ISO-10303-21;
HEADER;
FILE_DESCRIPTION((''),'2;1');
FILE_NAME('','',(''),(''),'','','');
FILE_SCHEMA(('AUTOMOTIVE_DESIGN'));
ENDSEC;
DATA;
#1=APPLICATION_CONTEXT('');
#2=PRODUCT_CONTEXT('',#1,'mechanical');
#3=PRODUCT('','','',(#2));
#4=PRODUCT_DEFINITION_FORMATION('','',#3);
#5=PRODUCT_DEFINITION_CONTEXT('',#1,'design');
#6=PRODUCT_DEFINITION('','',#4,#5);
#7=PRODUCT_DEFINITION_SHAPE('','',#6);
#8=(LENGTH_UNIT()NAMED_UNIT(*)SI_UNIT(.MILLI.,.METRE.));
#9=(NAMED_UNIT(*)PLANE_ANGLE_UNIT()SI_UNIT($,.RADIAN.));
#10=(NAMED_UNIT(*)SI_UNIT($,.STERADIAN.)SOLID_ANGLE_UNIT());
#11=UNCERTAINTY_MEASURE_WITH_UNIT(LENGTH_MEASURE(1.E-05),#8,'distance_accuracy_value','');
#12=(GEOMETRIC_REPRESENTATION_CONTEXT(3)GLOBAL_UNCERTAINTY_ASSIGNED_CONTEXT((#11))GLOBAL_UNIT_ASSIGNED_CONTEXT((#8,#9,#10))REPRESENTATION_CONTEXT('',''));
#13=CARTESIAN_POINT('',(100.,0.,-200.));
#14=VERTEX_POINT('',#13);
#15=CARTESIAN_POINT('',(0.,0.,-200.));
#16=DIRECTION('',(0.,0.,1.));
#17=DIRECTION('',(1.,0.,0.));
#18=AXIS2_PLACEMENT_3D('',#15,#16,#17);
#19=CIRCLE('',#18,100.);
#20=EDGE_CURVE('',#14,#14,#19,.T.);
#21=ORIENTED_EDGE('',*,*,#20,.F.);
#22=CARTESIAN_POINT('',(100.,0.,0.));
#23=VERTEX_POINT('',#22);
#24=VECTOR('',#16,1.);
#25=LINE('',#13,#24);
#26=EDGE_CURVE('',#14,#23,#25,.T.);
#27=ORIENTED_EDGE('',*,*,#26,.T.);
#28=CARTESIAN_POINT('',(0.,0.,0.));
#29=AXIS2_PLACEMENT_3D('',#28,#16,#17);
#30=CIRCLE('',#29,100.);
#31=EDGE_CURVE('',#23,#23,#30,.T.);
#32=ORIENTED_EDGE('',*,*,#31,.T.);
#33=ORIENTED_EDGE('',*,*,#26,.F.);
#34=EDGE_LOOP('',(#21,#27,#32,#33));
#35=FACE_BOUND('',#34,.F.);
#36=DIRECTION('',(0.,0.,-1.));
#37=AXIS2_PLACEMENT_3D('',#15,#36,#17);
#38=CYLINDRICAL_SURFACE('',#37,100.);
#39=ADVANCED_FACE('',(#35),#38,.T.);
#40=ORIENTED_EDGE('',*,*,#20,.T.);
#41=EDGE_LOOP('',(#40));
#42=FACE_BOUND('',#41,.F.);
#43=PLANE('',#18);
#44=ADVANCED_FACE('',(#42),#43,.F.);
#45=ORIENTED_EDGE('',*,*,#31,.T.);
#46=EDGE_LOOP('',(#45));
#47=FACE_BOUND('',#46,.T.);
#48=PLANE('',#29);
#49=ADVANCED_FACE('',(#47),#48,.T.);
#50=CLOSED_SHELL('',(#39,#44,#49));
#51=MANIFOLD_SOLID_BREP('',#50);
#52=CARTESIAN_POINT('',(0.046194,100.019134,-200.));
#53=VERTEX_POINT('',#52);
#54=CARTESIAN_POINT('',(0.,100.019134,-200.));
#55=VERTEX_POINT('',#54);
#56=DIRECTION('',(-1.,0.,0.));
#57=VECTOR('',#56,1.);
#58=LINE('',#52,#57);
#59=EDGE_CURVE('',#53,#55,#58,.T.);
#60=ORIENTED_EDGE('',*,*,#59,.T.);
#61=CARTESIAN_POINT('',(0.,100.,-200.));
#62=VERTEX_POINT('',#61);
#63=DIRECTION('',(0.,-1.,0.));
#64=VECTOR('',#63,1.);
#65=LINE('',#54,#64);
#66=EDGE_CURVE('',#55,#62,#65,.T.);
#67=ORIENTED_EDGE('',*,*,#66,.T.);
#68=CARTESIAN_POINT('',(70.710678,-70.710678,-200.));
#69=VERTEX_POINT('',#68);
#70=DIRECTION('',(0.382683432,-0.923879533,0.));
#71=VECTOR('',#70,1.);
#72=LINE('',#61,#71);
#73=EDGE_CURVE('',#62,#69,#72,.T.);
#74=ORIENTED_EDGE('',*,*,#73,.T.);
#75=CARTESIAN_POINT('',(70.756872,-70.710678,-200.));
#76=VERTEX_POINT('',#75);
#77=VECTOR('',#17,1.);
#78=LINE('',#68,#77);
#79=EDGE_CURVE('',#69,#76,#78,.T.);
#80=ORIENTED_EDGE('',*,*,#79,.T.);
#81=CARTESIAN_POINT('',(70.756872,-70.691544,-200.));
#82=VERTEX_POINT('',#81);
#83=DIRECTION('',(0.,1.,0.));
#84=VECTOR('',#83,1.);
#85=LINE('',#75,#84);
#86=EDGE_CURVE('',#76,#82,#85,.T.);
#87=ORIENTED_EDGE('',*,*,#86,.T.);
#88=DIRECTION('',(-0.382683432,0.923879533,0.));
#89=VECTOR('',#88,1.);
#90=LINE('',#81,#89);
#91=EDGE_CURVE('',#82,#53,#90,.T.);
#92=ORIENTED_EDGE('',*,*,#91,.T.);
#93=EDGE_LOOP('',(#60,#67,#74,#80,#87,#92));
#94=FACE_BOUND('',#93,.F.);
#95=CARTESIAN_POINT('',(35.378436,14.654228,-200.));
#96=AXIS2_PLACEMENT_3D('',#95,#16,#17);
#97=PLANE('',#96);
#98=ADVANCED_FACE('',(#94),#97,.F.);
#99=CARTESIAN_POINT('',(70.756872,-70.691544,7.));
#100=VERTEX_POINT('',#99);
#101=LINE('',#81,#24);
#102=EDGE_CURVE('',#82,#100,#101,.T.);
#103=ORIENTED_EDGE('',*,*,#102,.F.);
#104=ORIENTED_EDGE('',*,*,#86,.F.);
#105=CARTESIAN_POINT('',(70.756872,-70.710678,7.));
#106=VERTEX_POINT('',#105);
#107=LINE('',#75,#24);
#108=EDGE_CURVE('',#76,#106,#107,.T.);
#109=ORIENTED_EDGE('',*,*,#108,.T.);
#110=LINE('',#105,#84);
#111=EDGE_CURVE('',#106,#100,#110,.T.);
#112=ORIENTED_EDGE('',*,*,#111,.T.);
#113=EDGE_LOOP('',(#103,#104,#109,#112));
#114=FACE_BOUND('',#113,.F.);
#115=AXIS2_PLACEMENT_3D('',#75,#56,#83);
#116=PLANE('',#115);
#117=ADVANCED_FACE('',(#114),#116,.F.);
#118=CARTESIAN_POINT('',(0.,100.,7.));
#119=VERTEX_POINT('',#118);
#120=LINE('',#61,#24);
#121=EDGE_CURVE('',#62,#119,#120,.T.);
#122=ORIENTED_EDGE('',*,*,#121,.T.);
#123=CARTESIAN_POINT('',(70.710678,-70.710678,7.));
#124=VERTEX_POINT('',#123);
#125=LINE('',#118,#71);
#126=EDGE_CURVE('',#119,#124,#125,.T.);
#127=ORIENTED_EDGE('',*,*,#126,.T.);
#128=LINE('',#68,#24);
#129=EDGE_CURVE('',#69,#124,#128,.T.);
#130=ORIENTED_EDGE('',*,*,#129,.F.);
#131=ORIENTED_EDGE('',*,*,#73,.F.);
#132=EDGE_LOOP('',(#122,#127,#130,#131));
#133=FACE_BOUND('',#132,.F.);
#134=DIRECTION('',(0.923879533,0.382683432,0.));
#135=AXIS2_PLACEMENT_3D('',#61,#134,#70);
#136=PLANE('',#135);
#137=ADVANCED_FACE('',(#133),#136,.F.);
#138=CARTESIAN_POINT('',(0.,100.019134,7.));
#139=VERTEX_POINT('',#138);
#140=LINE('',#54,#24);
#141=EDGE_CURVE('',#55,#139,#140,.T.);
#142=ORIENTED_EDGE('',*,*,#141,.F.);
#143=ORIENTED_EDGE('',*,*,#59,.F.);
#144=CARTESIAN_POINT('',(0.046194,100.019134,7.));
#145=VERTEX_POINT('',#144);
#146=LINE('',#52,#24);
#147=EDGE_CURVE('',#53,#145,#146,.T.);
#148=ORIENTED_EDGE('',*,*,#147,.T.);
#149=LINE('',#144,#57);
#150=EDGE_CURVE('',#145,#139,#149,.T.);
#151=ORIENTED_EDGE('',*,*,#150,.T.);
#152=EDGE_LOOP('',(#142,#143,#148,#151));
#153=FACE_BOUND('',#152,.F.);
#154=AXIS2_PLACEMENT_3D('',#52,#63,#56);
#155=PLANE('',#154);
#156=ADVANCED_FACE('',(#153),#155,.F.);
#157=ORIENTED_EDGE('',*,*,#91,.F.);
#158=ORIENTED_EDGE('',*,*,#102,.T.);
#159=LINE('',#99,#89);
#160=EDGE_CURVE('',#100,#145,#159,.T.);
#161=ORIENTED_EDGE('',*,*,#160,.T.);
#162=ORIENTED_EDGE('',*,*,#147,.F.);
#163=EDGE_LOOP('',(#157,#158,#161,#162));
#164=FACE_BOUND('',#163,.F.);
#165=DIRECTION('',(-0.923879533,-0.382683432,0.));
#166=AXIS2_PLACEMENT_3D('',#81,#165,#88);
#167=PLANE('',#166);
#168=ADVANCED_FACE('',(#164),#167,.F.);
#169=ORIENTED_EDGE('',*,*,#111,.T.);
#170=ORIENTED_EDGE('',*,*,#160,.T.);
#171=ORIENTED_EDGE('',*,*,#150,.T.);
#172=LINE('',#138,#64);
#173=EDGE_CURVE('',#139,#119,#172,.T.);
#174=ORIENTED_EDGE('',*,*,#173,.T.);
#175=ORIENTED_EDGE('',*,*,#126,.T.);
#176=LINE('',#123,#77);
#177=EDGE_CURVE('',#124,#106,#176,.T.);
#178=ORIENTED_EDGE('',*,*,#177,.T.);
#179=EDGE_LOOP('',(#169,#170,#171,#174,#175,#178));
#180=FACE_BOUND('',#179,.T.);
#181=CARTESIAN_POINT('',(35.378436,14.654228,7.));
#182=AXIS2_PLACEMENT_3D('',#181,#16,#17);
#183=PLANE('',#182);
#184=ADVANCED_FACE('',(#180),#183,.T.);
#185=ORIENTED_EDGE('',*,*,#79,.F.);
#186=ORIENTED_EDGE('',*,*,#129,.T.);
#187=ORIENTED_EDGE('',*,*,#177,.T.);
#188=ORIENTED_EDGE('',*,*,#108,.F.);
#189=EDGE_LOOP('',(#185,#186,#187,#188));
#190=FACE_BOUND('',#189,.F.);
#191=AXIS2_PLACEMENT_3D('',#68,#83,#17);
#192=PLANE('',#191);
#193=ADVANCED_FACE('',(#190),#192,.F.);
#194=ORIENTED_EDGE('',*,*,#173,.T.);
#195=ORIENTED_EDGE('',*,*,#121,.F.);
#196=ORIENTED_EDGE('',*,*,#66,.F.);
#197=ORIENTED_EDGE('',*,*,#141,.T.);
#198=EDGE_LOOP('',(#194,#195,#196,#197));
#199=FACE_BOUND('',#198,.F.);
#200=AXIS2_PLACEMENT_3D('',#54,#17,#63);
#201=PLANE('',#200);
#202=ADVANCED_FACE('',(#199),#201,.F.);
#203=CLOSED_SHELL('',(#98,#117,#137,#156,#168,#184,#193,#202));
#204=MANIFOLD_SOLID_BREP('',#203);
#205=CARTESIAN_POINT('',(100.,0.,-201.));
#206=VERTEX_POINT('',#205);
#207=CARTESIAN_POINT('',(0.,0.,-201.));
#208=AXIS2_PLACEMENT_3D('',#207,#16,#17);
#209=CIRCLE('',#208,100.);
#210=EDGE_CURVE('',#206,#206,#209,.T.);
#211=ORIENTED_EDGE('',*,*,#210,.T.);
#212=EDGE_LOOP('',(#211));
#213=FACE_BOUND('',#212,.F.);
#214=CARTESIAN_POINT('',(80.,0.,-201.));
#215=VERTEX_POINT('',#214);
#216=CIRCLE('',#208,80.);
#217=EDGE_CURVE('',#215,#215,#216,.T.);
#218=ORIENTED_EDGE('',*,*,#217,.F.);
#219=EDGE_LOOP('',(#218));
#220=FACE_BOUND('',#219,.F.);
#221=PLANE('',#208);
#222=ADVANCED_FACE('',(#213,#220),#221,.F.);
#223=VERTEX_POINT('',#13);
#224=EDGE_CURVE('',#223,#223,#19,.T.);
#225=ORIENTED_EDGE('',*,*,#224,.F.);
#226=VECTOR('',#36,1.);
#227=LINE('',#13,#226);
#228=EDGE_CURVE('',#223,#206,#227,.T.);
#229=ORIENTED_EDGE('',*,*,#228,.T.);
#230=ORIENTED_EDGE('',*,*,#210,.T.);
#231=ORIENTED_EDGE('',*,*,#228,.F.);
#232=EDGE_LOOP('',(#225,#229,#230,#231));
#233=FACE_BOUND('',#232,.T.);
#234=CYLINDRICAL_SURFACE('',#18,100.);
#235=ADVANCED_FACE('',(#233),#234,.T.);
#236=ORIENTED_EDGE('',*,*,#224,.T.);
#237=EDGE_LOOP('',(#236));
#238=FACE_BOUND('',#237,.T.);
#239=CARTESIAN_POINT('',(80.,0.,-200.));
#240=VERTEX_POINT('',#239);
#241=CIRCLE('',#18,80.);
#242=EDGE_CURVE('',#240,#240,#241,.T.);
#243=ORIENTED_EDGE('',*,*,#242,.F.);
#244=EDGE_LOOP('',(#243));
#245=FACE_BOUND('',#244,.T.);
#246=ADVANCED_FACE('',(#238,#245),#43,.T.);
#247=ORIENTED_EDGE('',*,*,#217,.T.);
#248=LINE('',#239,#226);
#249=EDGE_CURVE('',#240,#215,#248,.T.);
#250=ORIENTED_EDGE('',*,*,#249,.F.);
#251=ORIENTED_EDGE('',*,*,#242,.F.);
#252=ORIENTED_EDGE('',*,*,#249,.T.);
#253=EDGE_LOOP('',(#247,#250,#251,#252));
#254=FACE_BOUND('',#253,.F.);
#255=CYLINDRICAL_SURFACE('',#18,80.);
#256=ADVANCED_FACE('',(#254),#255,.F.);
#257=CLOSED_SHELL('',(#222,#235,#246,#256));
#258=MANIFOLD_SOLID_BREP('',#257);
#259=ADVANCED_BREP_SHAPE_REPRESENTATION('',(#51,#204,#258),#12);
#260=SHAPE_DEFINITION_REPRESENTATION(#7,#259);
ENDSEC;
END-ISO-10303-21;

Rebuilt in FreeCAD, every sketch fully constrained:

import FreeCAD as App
import Part
import Sketcher
Q = App.Units.Quantity


def add_polygon(sketch, points):
    """Adds a closed chain of lines whose ends are joined by coincident constraints."""
    first, n = sketch.GeometryCount, len(points)
    for a, b in zip(points, points[1:] + points[:1]):
        sketch.addGeometry(Part.LineSegment(App.Vector(*a, 0), App.Vector(*b, 0)), False)
    for i in range(n):
        sketch.addConstraint(Sketcher.Constraint("Coincident", first + i, 2, first + (i + 1) % n, 1))

doc = App.newDocument("Part")
body = doc.addObject("PartDesign::Body", "Body")

# Sketch on XY plane
sketch1 = doc.addObject("Sketcher::SketchObject", "Sketch")
body.addObject(sketch1)
sketch1.AttachmentSupport = (doc.XY_Plane, [""])
sketch1.MapMode = "FlatFace"
sketch1.AttachmentOffset = App.Placement(App.Vector(0, 0, -200), App.Rotation())
add_polygon(sketch1, [(0, 100.019), (0, 100), (70.711, -70.711), (70.757, -70.711), (70.757, -70.692), (0.046, 100.019)])  # lines 0-5
sketch1.addConstraint([
    Sketcher.Constraint("Vertical", 0),
    Sketcher.Constraint("Horizontal", 2),
    Sketcher.Constraint("Vertical", 3),
    Sketcher.Constraint("Horizontal", 5),
    Sketcher.Constraint("PointOnObject", 0, 2, -2),
    Sketcher.Constraint("Parallel", 1, 4),
    Sketcher.Constraint("Equal", 2, 5),
    Sketcher.Constraint("DistanceY", -1, 1, 0, 2, Q("100 mm")),
    Sketcher.Constraint("Angle", 1, Q("-67.5 deg")),
    Sketcher.Constraint("DistanceX", 2, 1, 2, 2, Q("0.046194 mm")),
    Sketcher.Constraint("DistanceY", 0, 2, 0, 1, Q("0.019134 mm")),
    Sketcher.Constraint("DistanceX", -1, 1, 1, 2, Q("70.710678 mm")),
])
pad1 = doc.addObject("PartDesign::Pad", "Pad")
body.addObject(pad1)
pad1.Profile = sketch1
pad1.Length = 207
body2 = doc.addObject("PartDesign::Body", "Body001")

# Sketch on XY plane
sketch2 = doc.addObject("Sketcher::SketchObject", "Sketch001")
body2.addObject(sketch2)
sketch2.AttachmentSupport = (doc.getObject("XY_Plane001"), [""])
sketch2.MapMode = "FlatFace"
sketch2.AttachmentOffset = App.Placement(App.Vector(0, 0, -200), App.Rotation())
sketch2.addGeometry(Part.Circle(App.Vector(0, 0, 0), App.Vector(0, 0, 1), 100), False)
sketch2.addConstraint([
    Sketcher.Constraint("Coincident", 0, 3, -1, 1),
    Sketcher.Constraint("Diameter", 0, Q("200 mm")),
])
pad2 = doc.addObject("PartDesign::Pad", "Pad001")
body2.addObject(pad2)
pad2.Profile = sketch2
pad2.Length = 200
body3 = doc.addObject("PartDesign::Body", "Body002")

# Sketch on XY plane
sketch3 = doc.addObject("Sketcher::SketchObject", "Sketch002")
body3.addObject(sketch3)
sketch3.AttachmentSupport = (doc.getObject("XY_Plane002"), [""])
sketch3.MapMode = "FlatFace"
sketch3.AttachmentOffset = App.Placement(App.Vector(0, 0, -200), App.Rotation())
sketch3.addGeometry([
    Part.Circle(App.Vector(0, 0, 0), App.Vector(0, 0, 1), 100),
    Part.Circle(App.Vector(0, 0, 0), App.Vector(0, 0, 1), 80),
], False)
sketch3.addConstraint([
    Sketcher.Constraint("Coincident", 0, 3, -1, 1),
    Sketcher.Constraint("Coincident", 1, 3, -1, 1),
    Sketcher.Constraint("Diameter", 0, Q("200 mm")),
    Sketcher.Constraint("Diameter", 1, Q("160 mm")),
])
pad3 = doc.addObject("PartDesign::Pad", "Pad002")
body3.addObject(pad3)
pad3.Profile = sketch3
pad3.Length = 1
pad3.Reversed = True

doc.recompute()
